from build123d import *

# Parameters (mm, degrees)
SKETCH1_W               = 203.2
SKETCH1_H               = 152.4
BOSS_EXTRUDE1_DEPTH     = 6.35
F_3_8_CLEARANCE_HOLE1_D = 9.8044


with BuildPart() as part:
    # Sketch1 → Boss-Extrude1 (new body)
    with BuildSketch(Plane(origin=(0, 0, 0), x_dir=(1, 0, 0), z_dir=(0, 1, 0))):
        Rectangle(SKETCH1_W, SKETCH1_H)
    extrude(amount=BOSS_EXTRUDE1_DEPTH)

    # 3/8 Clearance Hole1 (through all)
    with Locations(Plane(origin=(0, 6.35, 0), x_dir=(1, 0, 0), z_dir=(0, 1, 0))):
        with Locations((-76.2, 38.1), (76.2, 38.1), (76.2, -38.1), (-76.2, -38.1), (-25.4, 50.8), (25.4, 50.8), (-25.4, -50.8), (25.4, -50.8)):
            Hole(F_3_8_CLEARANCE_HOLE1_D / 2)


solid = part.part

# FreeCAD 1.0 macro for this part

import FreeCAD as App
import Part
import Sketcher

V = App.Vector
Q = App.Units.Quantity

doc = App.newDocument("Part")
body = doc.addObject("PartDesign::Body", "Body")

# Sketch on XZ plane
sketch1 = body.newObject("Sketcher::SketchObject", "Sketch")
sketch1.AttachmentSupport = (doc.getObject("XZ_Plane"), [""])
sketch1.MapMode = "FlatFace"
sketch1.addGeometry(Part.LineSegment(V(-102, -76, 0), V(-102, 76, 0)), False)
sketch1.addGeometry(Part.LineSegment(V(-102, 76, 0), V(102, 76, 0)), False)
sketch1.addGeometry(Part.LineSegment(V(102, 76, 0), V(102, -76, 0)), False)
sketch1.addGeometry(Part.LineSegment(V(102, -76, 0), V(-102, -76, 0)), False)
sketch1.addConstraint(Sketcher.Constraint("Coincident", 0, 2, 1, 1))
sketch1.addConstraint(Sketcher.Constraint("Coincident", 1, 2, 2, 1))
sketch1.addConstraint(Sketcher.Constraint("Coincident", 2, 2, 3, 1))
sketch1.addConstraint(Sketcher.Constraint("Coincident", 3, 2, 0, 1))
sketch1.addConstraint(Sketcher.Constraint("Vertical", 0))
sketch1.addConstraint(Sketcher.Constraint("Horizontal", 1))
sketch1.addConstraint(Sketcher.Constraint("Vertical", 2))
sketch1.addConstraint(Sketcher.Constraint("Horizontal", 3))
sketch1.addConstraint(Sketcher.Constraint("Symmetric", 0, 2, 2, 2, -1, 1))
sketch1.addConstraint(Sketcher.Constraint("DistanceX", 1, 1, 1, 2, Q("8 in")))
sketch1.addConstraint(Sketcher.Constraint("DistanceY", 0, 1, 0, 2, Q("6 in")))
pad1 = body.newObject("PartDesign::Pad", "Pad")
pad1.Profile = sketch1
pad1.Length = Q("0.25 in")
pad1.Reversed = True

# Sketch on XZ plane
sketch2 = body.newObject("Sketcher::SketchObject", "Sketch001")
sketch2.AttachmentSupport = (doc.getObject("XZ_Plane"), [""])
sketch2.MapMode = "FlatFace"
sketch2.AttachmentOffset = App.Placement(V(0, 0, -0.25 * 25.4), App.Rotation())
sketch2.addGeometry(Part.Circle(V(-76.2, -38.1, 0), V(0, 0, 1), 4.9), False)
sketch2.addGeometry(Part.Circle(V(76.2, -38.1, 0), V(0, 0, 1), 4.9), False)
sketch2.addGeometry(Part.Circle(V(76.2, 38.1, 0), V(0, 0, 1), 4.9), False)
sketch2.addGeometry(Part.Circle(V(-76.2, 38.1, 0), V(0, 0, 1), 4.9), False)
sketch2.addGeometry(Part.Circle(V(-25.4, -50.8, 0), V(0, 0, 1), 4.9), False)
sketch2.addGeometry(Part.Circle(V(25.4, -50.8, 0), V(0, 0, 1), 4.9), False)
sketch2.addGeometry(Part.Circle(V(-25.4, 50.8, 0), V(0, 0, 1), 4.9), False)
sketch2.addGeometry(Part.Circle(V(25.4, 50.8, 0), V(0, 0, 1), 4.9), False)
sketch2.addConstraint(Sketcher.Constraint("Equal", 0, 1))
sketch2.addConstraint(Sketcher.Constraint("Equal", 1, 2))
sketch2.addConstraint(Sketcher.Constraint("Equal", 2, 3))
sketch2.addConstraint(Sketcher.Constraint("Equal", 3, 4))
sketch2.addConstraint(Sketcher.Constraint("Equal", 4, 5))
sketch2.addConstraint(Sketcher.Constraint("Equal", 5, 6))
sketch2.addConstraint(Sketcher.Constraint("Equal", 6, 7))
sketch2.addConstraint(Sketcher.Constraint("Symmetric", 0, 3, 2, 3, -1, 1))
sketch2.addConstraint(Sketcher.Constraint("Symmetric", 1, 3, 3, 3, -1, 1))
sketch2.addConstraint(Sketcher.Constraint("Symmetric", 5, 3, 6, 3, -1, 1))
sketch2.addConstraint(Sketcher.Constraint("Symmetric", 4, 3, 7, 3, -1, 1))
sketch2.addConstraint(Sketcher.Constraint("Symmetric", 0, 3, 1, 3, -2))
sketch2.addConstraint(Sketcher.Constraint("Symmetric", 4, 3, 5, 3, -2))
sketch2.addConstraint(Sketcher.Constraint("Diameter", 0, Q("0.386 in")))
sketch2.addConstraint(Sketcher.Constraint("DistanceX", 0, 3, -1, 1, Q("3 in")))
sketch2.addConstraint(Sketcher.Constraint("DistanceX", 4, 3, -1, 1, Q("1 in")))
sketch2.addConstraint(Sketcher.Constraint("DistanceY", 4, 3, -1, 1, Q("2 in")))
sketch2.addConstraint(Sketcher.Constraint("DistanceY", 1, 3, 2, 3, Q("3 in")))
doc.recompute()
hole = body.newObject("PartDesign::Hole", "Hole")
hole.Profile = sketch2
hole.ThreadType = "None"
hole.Diameter = Q("0.386 in")
hole.DepthType = "ThroughAll"
hole.Reversed = True

doc.recompute()
